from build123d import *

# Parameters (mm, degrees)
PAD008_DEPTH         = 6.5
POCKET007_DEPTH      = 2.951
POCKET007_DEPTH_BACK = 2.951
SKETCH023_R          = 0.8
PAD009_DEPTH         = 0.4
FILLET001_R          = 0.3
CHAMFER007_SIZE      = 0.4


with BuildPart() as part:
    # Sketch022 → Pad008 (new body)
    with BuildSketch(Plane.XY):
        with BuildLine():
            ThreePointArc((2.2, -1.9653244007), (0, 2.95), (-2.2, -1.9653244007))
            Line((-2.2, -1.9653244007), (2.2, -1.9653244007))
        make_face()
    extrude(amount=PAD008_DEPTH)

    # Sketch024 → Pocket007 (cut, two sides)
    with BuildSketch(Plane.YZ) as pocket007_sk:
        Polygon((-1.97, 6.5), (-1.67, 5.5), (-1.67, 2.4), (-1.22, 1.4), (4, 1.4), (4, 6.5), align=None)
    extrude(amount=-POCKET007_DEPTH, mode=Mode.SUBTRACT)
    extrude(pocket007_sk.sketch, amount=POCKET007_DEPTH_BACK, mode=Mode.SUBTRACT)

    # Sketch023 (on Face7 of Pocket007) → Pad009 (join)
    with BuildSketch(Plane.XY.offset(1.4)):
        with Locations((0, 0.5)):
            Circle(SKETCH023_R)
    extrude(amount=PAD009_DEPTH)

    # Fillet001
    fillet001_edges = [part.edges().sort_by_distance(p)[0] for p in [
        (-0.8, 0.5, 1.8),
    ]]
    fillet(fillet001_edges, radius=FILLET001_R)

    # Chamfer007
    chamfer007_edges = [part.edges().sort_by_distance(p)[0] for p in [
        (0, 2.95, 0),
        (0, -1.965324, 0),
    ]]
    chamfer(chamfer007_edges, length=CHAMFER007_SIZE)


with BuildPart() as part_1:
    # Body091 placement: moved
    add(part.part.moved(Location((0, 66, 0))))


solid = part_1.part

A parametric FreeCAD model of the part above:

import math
import FreeCAD as App
import Part
import Sketcher


def edges_at(feature, points):
    """Names of the edges that pass closest to the given points."""
    edges = feature.Shape.Edges
    near = lambda p: min(range(len(edges)), key=lambda i: edges[i].distToShape(Part.Vertex(*p))[0])
    return sorted({f"Edge{near(p) + 1}" for p in points})

doc = App.newDocument("Part")
body = doc.addObject("PartDesign::Body", "Body")

# Sketch on XY plane
sketch1 = body.newObject("Sketcher::SketchObject", "Sketch")
sketch1.AttachmentSupport = (doc.getObject("XY_Plane"), [""])
sketch1.MapMode = "FlatFace"
sketch1.addGeometry([
    Part.ArcOfCircle(Part.Circle(App.Vector(0, 0, 0), App.Vector(0, 0, 1), 2.95), math.radians(-41.775348), math.radians(221.775348)),
    Part.LineSegment(App.Vector(-2.2, -1.965324, 0), App.Vector(2.2, -1.965324, 0)),
], False)
sketch1.addConstraint([
    Sketcher.Constraint("Coincident", 0, 1, 1, 2),
    Sketcher.Constraint("Coincident", 1, 1, 0, 2),
    Sketcher.Constraint("Horizontal", 1),
    Sketcher.Constraint("Coincident", 0, 3, -1, 1),
    Sketcher.Constraint("Radius", 0, 2.95),
    Sketcher.Constraint("DistanceX", 1, 1, 1, 2, 4.4),
])
pad1 = body.newObject("PartDesign::Pad", "Pad")
pad1.Profile = sketch1
pad1.Length = 6.5

# Sketch on YZ plane
sketch2 = body.newObject("Sketcher::SketchObject", "Sketch001")
sketch2.AttachmentSupport = (doc.getObject("YZ_Plane"), [""])
sketch2.MapMode = "FlatFace"
sketch2.addGeometry([
    Part.LineSegment(App.Vector(-1.97, 6.5, 0), App.Vector(-1.67, 5.5, 0)),  # 0
    Part.LineSegment(App.Vector(-1.67, 5.5, 0), App.Vector(-1.67, 2.4, 0)),  # 1
    Part.LineSegment(App.Vector(-1.67, 2.4, 0), App.Vector(-1.22, 1.4, 0)),  # 2
    Part.LineSegment(App.Vector(-1.22, 1.4, 0), App.Vector(4, 1.4, 0)),  # 3
    Part.LineSegment(App.Vector(4, 1.4, 0), App.Vector(4, 6.5, 0)),  # 4
    Part.LineSegment(App.Vector(4, 6.5, 0), App.Vector(-1.97, 6.5, 0)),  # 5
], False)
sketch2.addConstraint([
    Sketcher.Constraint("Coincident", 0, 2, 1, 1),
    Sketcher.Constraint("Coincident", 1, 2, 2, 1),
    Sketcher.Constraint("Coincident", 2, 2, 3, 1),
    Sketcher.Constraint("Coincident", 3, 2, 4, 1),
    Sketcher.Constraint("Coincident", 4, 2, 5, 1),
    Sketcher.Constraint("Coincident", 5, 2, 0, 1),
    Sketcher.Constraint("Vertical", 1),
    Sketcher.Constraint("Horizontal", 3),
    Sketcher.Constraint("Vertical", 4),
    Sketcher.Constraint("Horizontal", 5),
    Sketcher.Constraint("DistanceY", 1, 2, 1, 1, 3.1),
    Sketcher.Constraint("DistanceY", 4, 1, 4, 2, 5.1),
    Sketcher.Constraint("DistanceX", -1, 1, 3, 2, 4.0),
    Sketcher.Constraint("DistanceY", 2, 2, 1, 2, 1.0),
    Sketcher.Constraint("DistanceX", 3, 1, 3, 2, 5.22),
    Sketcher.Constraint("DistanceX", 5, 2, 5, 1, 5.97),
    Sketcher.Constraint("DistanceY", -1, 1, 0, 2, 5.5),
    Sketcher.Constraint("DistanceX", 5, 2, 0, 2, 0.3),
])
pocket1 = body.newObject("PartDesign::Pocket", "Pocket")
pocket1.Profile = sketch2
pocket1.Type = "ThroughAll"
pocket1.Midplane = True

# Sketch on XY plane
sketch3 = body.newObject("Sketcher::SketchObject", "Sketch002")
sketch3.AttachmentSupport = (doc.getObject("XY_Plane"), [""])
sketch3.MapMode = "FlatFace"
sketch3.AttachmentOffset = App.Placement(App.Vector(0, 0, 1.4), App.Rotation())
sketch3.addGeometry(Part.Circle(App.Vector(0, 0.5, 0), App.Vector(0, 0, 1), 0.8), False)
sketch3.addConstraint([
    Sketcher.Constraint("PointOnObject", 0, 3, -2),
    Sketcher.Constraint("Diameter", 0, 1.6),
    Sketcher.Constraint("DistanceY", -1, 1, 0, 3, 0.5),
])
pad2 = body.newObject("PartDesign::Pad", "Pad001")
pad2.Profile = sketch3
pad2.Length = 0.4
doc.recompute()

fillet = body.newObject("PartDesign::Fillet", "Fillet")
fillet.Base = (pad2, edges_at(pad2, [(-0.8, 0.5, 1.8)]))
fillet.Radius = 0.3
doc.recompute()

chamfer = body.newObject("PartDesign::Chamfer", "Chamfer")
chamfer.Base = (fillet, edges_at(fillet, [(0, 2.95, 0), (0, -1.965, 0)]))
chamfer.Size = 0.4
body2 = doc.addObject("PartDesign::Body", "Body001")
doc.recompute()

body.Placement = App.Placement(App.Vector(0, 66, 0), App.Rotation(App.Vector(0, 0, 1), 0))
boolean = body2.newObject("PartDesign::Boolean", "Boolean")
boolean.Type = "Fuse"
boolean.addObjects([body])

doc.recompute()
